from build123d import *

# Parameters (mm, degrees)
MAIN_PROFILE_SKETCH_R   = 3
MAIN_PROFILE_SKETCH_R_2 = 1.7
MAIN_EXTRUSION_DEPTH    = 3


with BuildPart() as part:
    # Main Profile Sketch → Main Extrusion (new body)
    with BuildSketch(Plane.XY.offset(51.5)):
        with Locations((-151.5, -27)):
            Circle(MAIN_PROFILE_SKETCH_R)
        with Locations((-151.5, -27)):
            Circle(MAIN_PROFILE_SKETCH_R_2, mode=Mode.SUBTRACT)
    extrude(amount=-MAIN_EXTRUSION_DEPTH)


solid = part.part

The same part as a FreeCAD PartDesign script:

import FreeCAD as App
import Part
import Sketcher
Q = App.Units.Quantity

doc = App.newDocument("Part")
body = doc.addObject("PartDesign::Body", "Body")

sketch1 = body.newObject("Sketcher::SketchObject", "Sketch")
sketch1.AttachmentSupport = (doc.getObject("XY_Plane"), [""])
sketch1.MapMode = "FlatFace"
sketch1.AttachmentOffset = App.Placement(App.Vector(0, 0, 51.5), App.Rotation())
sketch1.addGeometry(Part.Circle(App.Vector(-151.5, -27, 0), App.Vector(0, 0, 1), 3), False)
sketch1.addGeometry(Part.Circle(App.Vector(-151.5, -27, 0), App.Vector(0, 0, 1), 1.7), False)
sketch1.addConstraint(Sketcher.Constraint("Coincident", 1, 3, 0, 3))
sketch1.addConstraint(Sketcher.Constraint("Diameter", 0, Q("6 mm")))
sketch1.addConstraint(Sketcher.Constraint("Diameter", 1, Q("3.4 mm")))
sketch1.addConstraint(Sketcher.Constraint("DistanceY", 0, 3, -1, 1, Q("27 mm")))
sketch1.addConstraint(Sketcher.Constraint("DistanceX", 0, 3, -1, 1, Q("151.5 mm")))
pad1 = body.newObject("PartDesign::Pad", "Pad")
pad1.Profile = sketch1
pad1.Length = 3
pad1.Reversed = True

doc.recompute()
